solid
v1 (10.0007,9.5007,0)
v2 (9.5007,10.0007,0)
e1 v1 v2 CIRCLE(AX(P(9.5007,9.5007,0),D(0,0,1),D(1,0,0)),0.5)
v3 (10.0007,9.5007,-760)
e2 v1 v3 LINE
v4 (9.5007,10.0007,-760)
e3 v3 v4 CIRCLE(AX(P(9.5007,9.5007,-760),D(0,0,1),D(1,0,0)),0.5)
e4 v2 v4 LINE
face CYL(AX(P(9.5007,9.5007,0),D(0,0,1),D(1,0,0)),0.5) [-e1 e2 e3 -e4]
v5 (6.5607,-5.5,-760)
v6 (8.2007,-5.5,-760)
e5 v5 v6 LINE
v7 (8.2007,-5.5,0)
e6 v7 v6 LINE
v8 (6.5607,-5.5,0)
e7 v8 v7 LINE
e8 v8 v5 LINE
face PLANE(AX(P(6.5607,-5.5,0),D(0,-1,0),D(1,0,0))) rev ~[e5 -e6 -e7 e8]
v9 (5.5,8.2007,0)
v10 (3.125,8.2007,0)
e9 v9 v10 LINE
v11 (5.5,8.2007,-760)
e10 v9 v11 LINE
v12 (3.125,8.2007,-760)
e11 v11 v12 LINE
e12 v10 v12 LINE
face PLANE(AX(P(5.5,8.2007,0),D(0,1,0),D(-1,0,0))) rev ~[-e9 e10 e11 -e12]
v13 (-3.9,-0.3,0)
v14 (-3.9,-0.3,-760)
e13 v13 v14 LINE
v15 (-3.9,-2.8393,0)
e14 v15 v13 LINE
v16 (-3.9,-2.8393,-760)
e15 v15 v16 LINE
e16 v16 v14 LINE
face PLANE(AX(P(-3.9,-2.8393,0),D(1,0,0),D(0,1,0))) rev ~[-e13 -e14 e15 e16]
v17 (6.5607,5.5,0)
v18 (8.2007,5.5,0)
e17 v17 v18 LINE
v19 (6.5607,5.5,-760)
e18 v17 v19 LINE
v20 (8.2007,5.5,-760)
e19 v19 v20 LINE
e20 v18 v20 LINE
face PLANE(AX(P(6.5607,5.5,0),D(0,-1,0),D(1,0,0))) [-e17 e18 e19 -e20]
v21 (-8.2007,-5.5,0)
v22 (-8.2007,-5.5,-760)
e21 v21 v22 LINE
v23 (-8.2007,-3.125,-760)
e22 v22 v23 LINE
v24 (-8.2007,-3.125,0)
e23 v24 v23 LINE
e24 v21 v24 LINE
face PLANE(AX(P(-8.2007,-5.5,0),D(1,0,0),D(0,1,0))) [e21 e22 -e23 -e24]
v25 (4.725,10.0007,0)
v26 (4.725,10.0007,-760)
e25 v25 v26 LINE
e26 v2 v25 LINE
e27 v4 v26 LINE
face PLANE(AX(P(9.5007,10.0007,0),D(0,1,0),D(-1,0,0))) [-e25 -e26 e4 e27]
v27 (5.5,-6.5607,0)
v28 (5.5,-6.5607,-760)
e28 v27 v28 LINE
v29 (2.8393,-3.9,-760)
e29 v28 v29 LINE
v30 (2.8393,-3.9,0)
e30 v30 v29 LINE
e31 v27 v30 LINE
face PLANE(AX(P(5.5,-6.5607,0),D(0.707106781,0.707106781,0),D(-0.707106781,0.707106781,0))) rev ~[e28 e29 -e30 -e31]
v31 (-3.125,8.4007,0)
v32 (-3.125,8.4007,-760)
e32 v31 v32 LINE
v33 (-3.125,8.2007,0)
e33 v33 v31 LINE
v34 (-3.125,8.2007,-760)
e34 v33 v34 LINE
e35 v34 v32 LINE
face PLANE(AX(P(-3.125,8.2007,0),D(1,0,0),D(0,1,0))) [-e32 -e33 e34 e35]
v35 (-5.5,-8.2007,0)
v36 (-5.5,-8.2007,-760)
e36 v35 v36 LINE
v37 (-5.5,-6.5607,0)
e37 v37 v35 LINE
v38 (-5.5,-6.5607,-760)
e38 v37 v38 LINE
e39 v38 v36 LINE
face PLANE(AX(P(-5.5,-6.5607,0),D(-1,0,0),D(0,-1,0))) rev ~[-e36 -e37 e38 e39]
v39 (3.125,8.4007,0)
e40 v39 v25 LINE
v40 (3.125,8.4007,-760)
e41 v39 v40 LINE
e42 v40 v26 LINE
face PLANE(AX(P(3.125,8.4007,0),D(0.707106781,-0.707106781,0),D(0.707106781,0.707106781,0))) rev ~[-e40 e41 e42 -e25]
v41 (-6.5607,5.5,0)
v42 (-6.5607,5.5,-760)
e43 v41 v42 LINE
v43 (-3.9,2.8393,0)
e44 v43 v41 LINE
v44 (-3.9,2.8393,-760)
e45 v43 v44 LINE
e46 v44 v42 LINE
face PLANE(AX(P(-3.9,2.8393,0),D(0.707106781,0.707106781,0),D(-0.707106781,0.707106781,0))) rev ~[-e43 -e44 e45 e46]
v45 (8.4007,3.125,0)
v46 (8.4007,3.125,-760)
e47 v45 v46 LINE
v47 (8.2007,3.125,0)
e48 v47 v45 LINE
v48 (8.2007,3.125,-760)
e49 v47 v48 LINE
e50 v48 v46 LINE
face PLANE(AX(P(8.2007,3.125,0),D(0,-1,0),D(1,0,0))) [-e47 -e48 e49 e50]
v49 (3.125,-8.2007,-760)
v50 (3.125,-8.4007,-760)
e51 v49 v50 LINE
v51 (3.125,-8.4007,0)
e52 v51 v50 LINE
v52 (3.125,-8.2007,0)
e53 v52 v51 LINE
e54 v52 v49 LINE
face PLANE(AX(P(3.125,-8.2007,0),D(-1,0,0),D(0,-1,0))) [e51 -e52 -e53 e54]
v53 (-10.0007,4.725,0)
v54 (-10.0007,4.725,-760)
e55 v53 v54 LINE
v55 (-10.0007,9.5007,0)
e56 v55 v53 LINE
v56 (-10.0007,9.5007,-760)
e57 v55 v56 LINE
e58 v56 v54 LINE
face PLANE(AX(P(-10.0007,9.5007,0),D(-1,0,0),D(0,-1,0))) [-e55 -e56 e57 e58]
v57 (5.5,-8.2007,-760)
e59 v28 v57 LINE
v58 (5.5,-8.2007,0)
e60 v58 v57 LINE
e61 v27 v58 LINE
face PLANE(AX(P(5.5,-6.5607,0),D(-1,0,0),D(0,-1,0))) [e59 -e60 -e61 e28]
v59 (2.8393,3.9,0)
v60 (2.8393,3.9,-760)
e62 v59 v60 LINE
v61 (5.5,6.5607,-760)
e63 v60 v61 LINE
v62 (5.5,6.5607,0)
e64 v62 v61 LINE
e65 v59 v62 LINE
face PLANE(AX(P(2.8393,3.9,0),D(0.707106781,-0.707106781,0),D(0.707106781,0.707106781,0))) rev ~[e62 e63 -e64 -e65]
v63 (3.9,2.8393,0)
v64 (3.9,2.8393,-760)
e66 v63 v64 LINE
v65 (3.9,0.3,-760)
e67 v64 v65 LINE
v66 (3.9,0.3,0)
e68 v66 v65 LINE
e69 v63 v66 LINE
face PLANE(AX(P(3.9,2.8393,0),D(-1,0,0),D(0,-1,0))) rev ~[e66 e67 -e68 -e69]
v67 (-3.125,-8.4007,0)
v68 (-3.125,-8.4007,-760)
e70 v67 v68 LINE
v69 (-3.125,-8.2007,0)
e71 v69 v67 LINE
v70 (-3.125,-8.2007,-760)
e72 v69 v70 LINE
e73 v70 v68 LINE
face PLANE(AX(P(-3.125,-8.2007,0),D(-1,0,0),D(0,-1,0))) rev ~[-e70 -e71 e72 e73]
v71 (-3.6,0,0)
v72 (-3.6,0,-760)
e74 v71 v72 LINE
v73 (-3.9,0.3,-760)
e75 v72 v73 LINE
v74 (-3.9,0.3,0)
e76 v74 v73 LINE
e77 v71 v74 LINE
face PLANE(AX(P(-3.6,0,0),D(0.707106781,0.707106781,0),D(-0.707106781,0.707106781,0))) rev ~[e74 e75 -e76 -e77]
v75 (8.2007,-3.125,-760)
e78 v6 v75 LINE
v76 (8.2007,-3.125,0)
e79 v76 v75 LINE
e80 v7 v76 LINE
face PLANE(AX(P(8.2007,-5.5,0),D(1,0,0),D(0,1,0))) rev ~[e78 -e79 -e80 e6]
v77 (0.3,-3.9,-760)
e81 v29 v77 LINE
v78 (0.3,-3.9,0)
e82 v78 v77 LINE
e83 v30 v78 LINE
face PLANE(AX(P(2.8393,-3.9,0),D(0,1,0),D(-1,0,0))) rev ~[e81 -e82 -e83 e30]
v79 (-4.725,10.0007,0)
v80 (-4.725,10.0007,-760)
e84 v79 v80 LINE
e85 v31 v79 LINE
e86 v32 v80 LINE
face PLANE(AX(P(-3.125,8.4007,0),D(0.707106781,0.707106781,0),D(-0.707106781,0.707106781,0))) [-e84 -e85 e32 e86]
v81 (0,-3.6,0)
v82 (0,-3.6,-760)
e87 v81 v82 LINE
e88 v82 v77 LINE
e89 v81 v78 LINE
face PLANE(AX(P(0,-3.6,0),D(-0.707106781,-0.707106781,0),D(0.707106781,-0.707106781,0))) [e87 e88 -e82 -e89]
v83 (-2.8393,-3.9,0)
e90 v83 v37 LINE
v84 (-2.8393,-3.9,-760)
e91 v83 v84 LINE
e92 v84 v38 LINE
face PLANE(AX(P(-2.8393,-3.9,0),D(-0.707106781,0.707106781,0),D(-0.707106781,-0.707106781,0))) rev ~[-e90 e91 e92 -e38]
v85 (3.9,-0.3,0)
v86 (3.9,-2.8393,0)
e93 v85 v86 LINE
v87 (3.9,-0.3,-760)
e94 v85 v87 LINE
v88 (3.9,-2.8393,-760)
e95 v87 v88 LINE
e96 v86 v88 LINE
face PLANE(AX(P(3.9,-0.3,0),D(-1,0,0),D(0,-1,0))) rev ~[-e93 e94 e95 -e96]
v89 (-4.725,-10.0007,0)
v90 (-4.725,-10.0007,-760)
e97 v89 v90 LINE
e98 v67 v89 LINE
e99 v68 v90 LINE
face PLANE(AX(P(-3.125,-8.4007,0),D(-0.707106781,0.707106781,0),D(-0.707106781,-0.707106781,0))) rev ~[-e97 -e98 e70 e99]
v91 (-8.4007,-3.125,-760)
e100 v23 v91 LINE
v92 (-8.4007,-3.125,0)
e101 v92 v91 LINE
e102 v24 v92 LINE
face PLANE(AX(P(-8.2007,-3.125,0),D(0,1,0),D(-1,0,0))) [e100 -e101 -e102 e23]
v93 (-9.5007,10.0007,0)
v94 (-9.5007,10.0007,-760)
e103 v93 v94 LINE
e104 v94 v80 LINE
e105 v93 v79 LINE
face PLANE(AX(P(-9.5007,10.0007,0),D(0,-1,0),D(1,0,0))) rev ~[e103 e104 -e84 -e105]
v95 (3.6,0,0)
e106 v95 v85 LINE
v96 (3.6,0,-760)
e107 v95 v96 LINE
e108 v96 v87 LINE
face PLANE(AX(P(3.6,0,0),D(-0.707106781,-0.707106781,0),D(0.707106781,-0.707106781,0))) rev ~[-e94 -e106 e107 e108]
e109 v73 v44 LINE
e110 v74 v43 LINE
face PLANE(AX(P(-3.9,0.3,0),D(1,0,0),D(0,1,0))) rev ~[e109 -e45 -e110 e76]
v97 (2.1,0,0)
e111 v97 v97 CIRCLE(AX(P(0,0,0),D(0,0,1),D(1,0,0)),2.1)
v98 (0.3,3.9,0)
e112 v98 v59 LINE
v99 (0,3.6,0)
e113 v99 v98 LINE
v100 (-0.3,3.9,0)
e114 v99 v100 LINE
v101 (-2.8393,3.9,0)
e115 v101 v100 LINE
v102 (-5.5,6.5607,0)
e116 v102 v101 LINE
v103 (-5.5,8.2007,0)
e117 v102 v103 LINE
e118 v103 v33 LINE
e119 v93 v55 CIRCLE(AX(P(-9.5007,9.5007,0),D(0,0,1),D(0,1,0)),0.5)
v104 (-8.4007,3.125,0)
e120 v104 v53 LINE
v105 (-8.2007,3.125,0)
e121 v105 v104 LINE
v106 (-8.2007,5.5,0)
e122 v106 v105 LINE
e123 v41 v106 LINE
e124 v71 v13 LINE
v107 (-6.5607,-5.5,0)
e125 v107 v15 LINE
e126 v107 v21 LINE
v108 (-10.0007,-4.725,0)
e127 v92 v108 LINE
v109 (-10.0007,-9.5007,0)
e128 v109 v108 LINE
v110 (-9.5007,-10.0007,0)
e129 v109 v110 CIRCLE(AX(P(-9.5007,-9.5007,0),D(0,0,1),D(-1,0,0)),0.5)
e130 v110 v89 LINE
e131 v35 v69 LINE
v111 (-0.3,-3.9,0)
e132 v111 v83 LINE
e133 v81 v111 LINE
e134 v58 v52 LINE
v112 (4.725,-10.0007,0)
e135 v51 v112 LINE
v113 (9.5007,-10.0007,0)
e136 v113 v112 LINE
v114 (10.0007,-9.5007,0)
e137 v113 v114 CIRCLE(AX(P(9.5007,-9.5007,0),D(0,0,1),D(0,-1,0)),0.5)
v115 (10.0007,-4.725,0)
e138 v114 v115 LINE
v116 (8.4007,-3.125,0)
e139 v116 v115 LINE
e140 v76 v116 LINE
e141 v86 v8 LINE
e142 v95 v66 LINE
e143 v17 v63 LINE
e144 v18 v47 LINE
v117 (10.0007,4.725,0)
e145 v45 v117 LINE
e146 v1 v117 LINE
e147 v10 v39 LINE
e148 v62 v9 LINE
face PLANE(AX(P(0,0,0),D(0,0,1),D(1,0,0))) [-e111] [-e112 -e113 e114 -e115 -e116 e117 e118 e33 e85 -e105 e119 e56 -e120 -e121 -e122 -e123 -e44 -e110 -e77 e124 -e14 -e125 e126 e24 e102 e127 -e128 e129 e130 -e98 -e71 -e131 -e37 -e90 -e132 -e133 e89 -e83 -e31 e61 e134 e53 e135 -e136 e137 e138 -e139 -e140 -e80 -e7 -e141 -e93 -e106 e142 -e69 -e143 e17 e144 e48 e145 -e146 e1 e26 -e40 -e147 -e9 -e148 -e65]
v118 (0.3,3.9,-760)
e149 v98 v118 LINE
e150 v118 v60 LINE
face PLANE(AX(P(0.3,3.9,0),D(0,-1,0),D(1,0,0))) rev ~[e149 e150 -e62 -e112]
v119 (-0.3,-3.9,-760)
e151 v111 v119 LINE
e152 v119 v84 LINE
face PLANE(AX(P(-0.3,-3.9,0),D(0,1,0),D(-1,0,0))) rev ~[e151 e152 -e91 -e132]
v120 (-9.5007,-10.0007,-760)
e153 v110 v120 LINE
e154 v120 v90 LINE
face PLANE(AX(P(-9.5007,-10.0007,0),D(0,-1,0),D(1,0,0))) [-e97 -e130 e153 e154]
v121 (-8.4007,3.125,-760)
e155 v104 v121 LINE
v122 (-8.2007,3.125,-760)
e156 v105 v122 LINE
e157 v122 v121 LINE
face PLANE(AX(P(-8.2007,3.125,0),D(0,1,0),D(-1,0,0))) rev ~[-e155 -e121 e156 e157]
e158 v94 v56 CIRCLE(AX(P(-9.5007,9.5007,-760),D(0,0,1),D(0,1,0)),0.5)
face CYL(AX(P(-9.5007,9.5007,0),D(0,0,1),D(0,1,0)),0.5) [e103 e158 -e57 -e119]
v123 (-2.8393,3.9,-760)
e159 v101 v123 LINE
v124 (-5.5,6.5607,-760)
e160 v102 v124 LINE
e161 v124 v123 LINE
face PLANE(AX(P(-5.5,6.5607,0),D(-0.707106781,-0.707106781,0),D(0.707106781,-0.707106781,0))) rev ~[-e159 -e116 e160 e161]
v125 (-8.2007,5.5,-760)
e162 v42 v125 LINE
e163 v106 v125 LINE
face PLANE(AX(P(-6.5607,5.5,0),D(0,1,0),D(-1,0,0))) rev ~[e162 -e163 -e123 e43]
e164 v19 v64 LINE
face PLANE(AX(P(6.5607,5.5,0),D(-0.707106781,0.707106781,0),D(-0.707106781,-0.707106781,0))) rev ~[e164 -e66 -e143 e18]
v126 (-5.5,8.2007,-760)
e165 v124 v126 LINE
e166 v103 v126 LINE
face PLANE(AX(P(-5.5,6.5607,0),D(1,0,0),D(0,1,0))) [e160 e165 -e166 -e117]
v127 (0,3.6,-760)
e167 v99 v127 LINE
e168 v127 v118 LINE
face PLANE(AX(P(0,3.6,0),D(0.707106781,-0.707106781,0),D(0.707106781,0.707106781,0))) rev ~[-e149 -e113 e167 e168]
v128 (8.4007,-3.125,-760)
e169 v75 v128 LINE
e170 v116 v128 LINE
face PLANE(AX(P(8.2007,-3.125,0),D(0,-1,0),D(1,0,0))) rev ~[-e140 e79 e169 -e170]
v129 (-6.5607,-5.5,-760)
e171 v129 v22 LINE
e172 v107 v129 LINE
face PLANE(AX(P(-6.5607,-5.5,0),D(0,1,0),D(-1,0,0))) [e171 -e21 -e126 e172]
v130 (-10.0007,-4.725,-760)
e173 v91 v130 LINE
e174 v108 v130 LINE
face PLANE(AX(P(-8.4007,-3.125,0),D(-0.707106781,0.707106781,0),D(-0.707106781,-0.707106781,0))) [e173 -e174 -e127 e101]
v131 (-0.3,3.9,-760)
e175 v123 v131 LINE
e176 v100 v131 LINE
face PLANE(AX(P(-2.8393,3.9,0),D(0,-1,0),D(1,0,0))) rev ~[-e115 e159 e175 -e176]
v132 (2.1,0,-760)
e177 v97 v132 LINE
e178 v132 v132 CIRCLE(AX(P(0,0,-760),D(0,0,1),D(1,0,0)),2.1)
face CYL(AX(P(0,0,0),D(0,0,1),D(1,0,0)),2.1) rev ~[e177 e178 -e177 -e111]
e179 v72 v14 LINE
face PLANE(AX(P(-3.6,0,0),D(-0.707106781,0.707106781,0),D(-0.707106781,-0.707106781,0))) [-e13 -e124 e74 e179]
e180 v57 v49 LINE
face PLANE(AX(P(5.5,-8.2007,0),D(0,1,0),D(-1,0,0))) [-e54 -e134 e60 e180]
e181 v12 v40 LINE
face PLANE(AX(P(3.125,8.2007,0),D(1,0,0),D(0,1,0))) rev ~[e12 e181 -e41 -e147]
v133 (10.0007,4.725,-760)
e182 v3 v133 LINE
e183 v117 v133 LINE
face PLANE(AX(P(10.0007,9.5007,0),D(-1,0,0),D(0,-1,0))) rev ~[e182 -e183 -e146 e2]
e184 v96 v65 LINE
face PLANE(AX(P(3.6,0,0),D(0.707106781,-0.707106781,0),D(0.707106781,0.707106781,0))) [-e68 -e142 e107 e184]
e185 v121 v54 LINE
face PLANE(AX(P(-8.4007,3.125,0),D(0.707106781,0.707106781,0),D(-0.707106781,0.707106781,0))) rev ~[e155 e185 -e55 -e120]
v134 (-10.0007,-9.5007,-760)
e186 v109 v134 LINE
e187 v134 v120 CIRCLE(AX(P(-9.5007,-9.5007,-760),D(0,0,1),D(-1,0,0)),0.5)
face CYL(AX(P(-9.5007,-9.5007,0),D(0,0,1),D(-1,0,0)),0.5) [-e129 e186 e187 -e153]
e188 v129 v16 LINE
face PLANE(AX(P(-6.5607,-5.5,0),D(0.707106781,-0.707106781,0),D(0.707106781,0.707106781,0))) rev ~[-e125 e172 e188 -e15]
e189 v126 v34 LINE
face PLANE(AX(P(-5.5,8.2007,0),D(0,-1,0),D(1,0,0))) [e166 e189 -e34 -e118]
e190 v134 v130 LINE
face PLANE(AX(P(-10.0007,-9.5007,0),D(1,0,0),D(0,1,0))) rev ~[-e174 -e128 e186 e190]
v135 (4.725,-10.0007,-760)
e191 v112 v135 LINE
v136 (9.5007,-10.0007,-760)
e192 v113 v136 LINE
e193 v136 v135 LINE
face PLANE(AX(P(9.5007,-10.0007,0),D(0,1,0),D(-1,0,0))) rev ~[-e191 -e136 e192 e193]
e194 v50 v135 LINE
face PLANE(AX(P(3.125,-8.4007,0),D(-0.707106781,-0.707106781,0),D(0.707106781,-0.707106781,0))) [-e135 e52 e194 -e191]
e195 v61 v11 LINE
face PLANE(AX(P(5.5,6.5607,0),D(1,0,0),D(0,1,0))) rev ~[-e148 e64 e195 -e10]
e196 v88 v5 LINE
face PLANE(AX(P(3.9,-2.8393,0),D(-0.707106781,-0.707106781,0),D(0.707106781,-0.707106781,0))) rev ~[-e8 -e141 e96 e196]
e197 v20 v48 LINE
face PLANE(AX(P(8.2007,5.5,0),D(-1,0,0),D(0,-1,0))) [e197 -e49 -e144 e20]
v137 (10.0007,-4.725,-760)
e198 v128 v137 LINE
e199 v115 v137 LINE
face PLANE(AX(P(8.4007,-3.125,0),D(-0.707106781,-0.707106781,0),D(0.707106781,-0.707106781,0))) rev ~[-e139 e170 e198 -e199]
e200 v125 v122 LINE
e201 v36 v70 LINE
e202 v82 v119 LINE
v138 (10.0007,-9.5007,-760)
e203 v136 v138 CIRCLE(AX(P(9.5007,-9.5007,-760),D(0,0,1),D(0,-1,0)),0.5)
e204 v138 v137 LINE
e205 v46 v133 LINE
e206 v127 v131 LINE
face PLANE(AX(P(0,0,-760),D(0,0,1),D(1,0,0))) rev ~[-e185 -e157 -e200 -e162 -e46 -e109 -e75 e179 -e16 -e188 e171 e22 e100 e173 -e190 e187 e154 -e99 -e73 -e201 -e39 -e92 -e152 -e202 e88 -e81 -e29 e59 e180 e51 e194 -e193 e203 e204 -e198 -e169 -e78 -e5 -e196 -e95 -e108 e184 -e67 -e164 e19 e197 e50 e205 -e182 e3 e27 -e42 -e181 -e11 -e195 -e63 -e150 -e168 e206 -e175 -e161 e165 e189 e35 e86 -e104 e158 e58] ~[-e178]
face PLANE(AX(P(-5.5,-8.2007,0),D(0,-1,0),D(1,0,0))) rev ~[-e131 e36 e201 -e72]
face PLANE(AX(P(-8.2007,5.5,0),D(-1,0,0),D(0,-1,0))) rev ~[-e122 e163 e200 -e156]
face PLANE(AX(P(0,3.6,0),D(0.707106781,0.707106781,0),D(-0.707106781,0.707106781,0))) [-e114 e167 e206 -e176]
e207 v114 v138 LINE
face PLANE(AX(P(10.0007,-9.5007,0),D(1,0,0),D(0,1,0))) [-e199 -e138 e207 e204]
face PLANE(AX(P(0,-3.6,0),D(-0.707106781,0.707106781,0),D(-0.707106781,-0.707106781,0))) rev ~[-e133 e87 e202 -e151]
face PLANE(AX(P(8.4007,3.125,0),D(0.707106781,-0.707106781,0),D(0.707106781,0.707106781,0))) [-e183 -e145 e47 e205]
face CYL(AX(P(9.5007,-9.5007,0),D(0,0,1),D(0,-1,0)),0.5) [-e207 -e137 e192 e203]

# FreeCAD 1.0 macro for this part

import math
import FreeCAD as App
import Part
import Sketcher
Q = App.Units.Quantity

doc = App.newDocument("Part")
body = doc.addObject("PartDesign::Body", "Body")

# Sketch on XY plane
sketch1 = body.newObject("Sketcher::SketchObject", "Sketch")
sketch1.AttachmentSupport = (doc.getObject("XY_Plane"), [""])
sketch1.MapMode = "FlatFace"
sketch1.addGeometry([
    Part.LineSegment(App.Vector(3.9, -2.84, 0), App.Vector(3.9, -0.3, 0)),  # 0
    Part.LineSegment(App.Vector(3.9, -0.3, 0), App.Vector(3.6, 0, 0)),  # 1
    Part.LineSegment(App.Vector(3.6, 0, 0), App.Vector(3.9, 0.3, 0)),  # 2
    Part.LineSegment(App.Vector(3.9, 0.3, 0), App.Vector(3.9, 2.84, 0)),  # 3
    Part.LineSegment(App.Vector(3.9, 2.84, 0), App.Vector(6.56, 5.5, 0)),  # 4
    Part.LineSegment(App.Vector(6.56, 5.5, 0), App.Vector(8.2, 5.5, 0)),  # 5
    Part.LineSegment(App.Vector(8.2, 5.5, 0), App.Vector(8.2, 3.12, 0)),  # 6
    Part.LineSegment(App.Vector(8.2, 3.12, 0), App.Vector(8.4, 3.12, 0)),  # 7
    Part.LineSegment(App.Vector(8.4, 3.12, 0), App.Vector(10, 4.72, 0)),  # 8
    Part.LineSegment(App.Vector(10, 4.72, 0), App.Vector(10, 9.5, 0)),  # 9
    Part.ArcOfCircle(Part.Circle(App.Vector(9.5, 9.5, 0), App.Vector(0, 0, 1), 0.5), math.radians(0), math.radians(90)),  # 10
    Part.LineSegment(App.Vector(9.5, 10, 0), App.Vector(4.72, 10, 0)),  # 11
    Part.LineSegment(App.Vector(4.72, 10, 0), App.Vector(3.12, 8.4, 0)),  # 12
    Part.LineSegment(App.Vector(3.12, 8.4, 0), App.Vector(3.12, 8.2, 0)),  # 13
    Part.LineSegment(App.Vector(3.12, 8.2, 0), App.Vector(5.5, 8.2, 0)),  # 14
    Part.LineSegment(App.Vector(5.5, 8.2, 0), App.Vector(5.5, 6.56, 0)),  # 15
    Part.LineSegment(App.Vector(5.5, 6.56, 0), App.Vector(2.84, 3.9, 0)),  # 16
    Part.LineSegment(App.Vector(2.84, 3.9, 0), App.Vector(0.3, 3.9, 0)),  # 17
    Part.LineSegment(App.Vector(0.3, 3.9, 0), App.Vector(0, 3.6, 0)),  # 18
    Part.LineSegment(App.Vector(0, 3.6, 0), App.Vector(-0.3, 3.9, 0)),  # 19
    Part.LineSegment(App.Vector(-0.3, 3.9, 0), App.Vector(-2.84, 3.9, 0)),  # 20
    Part.LineSegment(App.Vector(-2.84, 3.9, 0), App.Vector(-5.5, 6.56, 0)),  # 21
    Part.LineSegment(App.Vector(-5.5, 6.56, 0), App.Vector(-5.5, 8.2, 0)),  # 22
    Part.LineSegment(App.Vector(-5.5, 8.2, 0), App.Vector(-3.12, 8.2, 0)),  # 23
    Part.LineSegment(App.Vector(-3.12, 8.2, 0), App.Vector(-3.12, 8.4, 0)),  # 24
    Part.LineSegment(App.Vector(-3.12, 8.4, 0), App.Vector(-4.72, 10, 0)),  # 25
    Part.LineSegment(App.Vector(-4.72, 10, 0), App.Vector(-9.5, 10, 0)),  # 26
    Part.ArcOfCircle(Part.Circle(App.Vector(-9.5, 9.5, 0), App.Vector(0, 0, 1), 0.5), math.radians(90), math.radians(180)),  # 27
    Part.LineSegment(App.Vector(-10, 9.5, 0), App.Vector(-10, 4.72, 0)),  # 28
    Part.LineSegment(App.Vector(-10, 4.72, 0), App.Vector(-8.4, 3.12, 0)),  # 29
    Part.LineSegment(App.Vector(-8.4, 3.12, 0), App.Vector(-8.2, 3.12, 0)),  # 30
    Part.LineSegment(App.Vector(-8.2, 3.12, 0), App.Vector(-8.2, 5.5, 0)),  # 31
    Part.LineSegment(App.Vector(-8.2, 5.5, 0), App.Vector(-6.56, 5.5, 0)),  # 32
    Part.LineSegment(App.Vector(-6.56, 5.5, 0), App.Vector(-3.9, 2.84, 0)),  # 33
    Part.LineSegment(App.Vector(-3.9, 2.84, 0), App.Vector(-3.9, 0.3, 0)),  # 34
    Part.LineSegment(App.Vector(-3.9, 0.3, 0), App.Vector(-3.6, 0, 0)),  # 35
    Part.LineSegment(App.Vector(-3.6, 0, 0), App.Vector(-3.9, -0.3, 0)),  # 36
    Part.LineSegment(App.Vector(-3.9, -0.3, 0), App.Vector(-3.9, -2.84, 0)),  # 37
    Part.LineSegment(App.Vector(-3.9, -2.84, 0), App.Vector(-6.56, -5.5, 0)),  # 38
    Part.LineSegment(App.Vector(-6.56, -5.5, 0), App.Vector(-8.2, -5.5, 0)),  # 39
    Part.LineSegment(App.Vector(-8.2, -5.5, 0), App.Vector(-8.2, -3.12, 0)),  # 40
    Part.LineSegment(App.Vector(-8.2, -3.12, 0), App.Vector(-8.4, -3.12, 0)),  # 41
    Part.LineSegment(App.Vector(-8.4, -3.12, 0), App.Vector(-10, -4.72, 0)),  # 42
    Part.LineSegment(App.Vector(-10, -4.72, 0), App.Vector(-10, -9.5, 0)),  # 43
    Part.ArcOfCircle(Part.Circle(App.Vector(-9.5, -9.5, 0), App.Vector(0, 0, 1), 0.5), math.radians(180), math.radians(270)),  # 44
    Part.LineSegment(App.Vector(-9.5, -10, 0), App.Vector(-4.72, -10, 0)),  # 45
    Part.LineSegment(App.Vector(-4.72, -10, 0), App.Vector(-3.12, -8.4, 0)),  # 46
    Part.LineSegment(App.Vector(-3.12, -8.4, 0), App.Vector(-3.12, -8.2, 0)),  # 47
    Part.LineSegment(App.Vector(-3.12, -8.2, 0), App.Vector(-5.5, -8.2, 0)),  # 48
    Part.LineSegment(App.Vector(-5.5, -8.2, 0), App.Vector(-5.5, -6.56, 0)),  # 49
    Part.LineSegment(App.Vector(-5.5, -6.56, 0), App.Vector(-2.84, -3.9, 0)),  # 50
    Part.LineSegment(App.Vector(-2.84, -3.9, 0), App.Vector(-0.3, -3.9, 0)),  # 51
    Part.LineSegment(App.Vector(-0.3, -3.9, 0), App.Vector(0, -3.6, 0)),  # 52
    Part.LineSegment(App.Vector(0, -3.6, 0), App.Vector(0.3, -3.9, 0)),  # 53
    Part.LineSegment(App.Vector(0.3, -3.9, 0), App.Vector(2.84, -3.9, 0)),  # 54
    Part.LineSegment(App.Vector(2.84, -3.9, 0), App.Vector(5.5, -6.56, 0)),  # 55
    Part.LineSegment(App.Vector(5.5, -6.56, 0), App.Vector(5.5, -8.2, 0)),  # 56
    Part.LineSegment(App.Vector(5.5, -8.2, 0), App.Vector(3.12, -8.2, 0)),  # 57
    Part.LineSegment(App.Vector(3.12, -8.2, 0), App.Vector(3.12, -8.4, 0)),  # 58
    Part.LineSegment(App.Vector(3.12, -8.4, 0), App.Vector(4.72, -10, 0)),  # 59
    Part.LineSegment(App.Vector(4.72, -10, 0), App.Vector(9.5, -10, 0)),  # 60
    Part.ArcOfCircle(Part.Circle(App.Vector(9.5, -9.5, 0), App.Vector(0, 0, 1), 0.5), math.radians(-90), math.radians(0)),  # 61
    Part.LineSegment(App.Vector(10, -9.5, 0), App.Vector(10, -4.72, 0)),  # 62
    Part.LineSegment(App.Vector(10, -4.72, 0), App.Vector(8.4, -3.12, 0)),  # 63
    Part.LineSegment(App.Vector(8.4, -3.12, 0), App.Vector(8.2, -3.12, 0)),  # 64
    Part.LineSegment(App.Vector(8.2, -3.12, 0), App.Vector(8.2, -5.5, 0)),  # 65
    Part.LineSegment(App.Vector(8.2, -5.5, 0), App.Vector(6.56, -5.5, 0)),  # 66
    Part.LineSegment(App.Vector(6.56, -5.5, 0), App.Vector(3.9, -2.84, 0)),  # 67
    Part.Circle(App.Vector(0, 0, 0), App.Vector(0, 0, 1), 2.1),  # 68
], False)
sketch1.addConstraint([
    Sketcher.Constraint("Coincident", 0, 2, 1, 1),
    Sketcher.Constraint("Coincident", 1, 2, 2, 1),
    Sketcher.Constraint("Coincident", 2, 2, 3, 1),
    Sketcher.Constraint("Coincident", 3, 2, 4, 1),
    Sketcher.Constraint("Coincident", 4, 2, 5, 1),
    Sketcher.Constraint("Coincident", 5, 2, 6, 1),
    Sketcher.Constraint("Coincident", 6, 2, 7, 1),
    Sketcher.Constraint("Coincident", 7, 2, 8, 1),
    Sketcher.Constraint("Coincident", 8, 2, 9, 1),
    Sketcher.Constraint("Tangent", 9, 2, 10, 1),
    Sketcher.Constraint("Tangent", 10, 2, 11, 1),
    Sketcher.Constraint("Coincident", 11, 2, 12, 1),
    Sketcher.Constraint("Coincident", 12, 2, 13, 1),
    Sketcher.Constraint("Coincident", 13, 2, 14, 1),
    Sketcher.Constraint("Coincident", 14, 2, 15, 1),
    Sketcher.Constraint("Coincident", 15, 2, 16, 1),
    Sketcher.Constraint("Coincident", 16, 2, 17, 1),
    Sketcher.Constraint("Coincident", 17, 2, 18, 1),
    Sketcher.Constraint("Coincident", 18, 2, 19, 1),
    Sketcher.Constraint("Coincident", 19, 2, 20, 1),
    Sketcher.Constraint("Coincident", 20, 2, 21, 1),
    Sketcher.Constraint("Coincident", 21, 2, 22, 1),
    Sketcher.Constraint("Coincident", 22, 2, 23, 1),
    Sketcher.Constraint("Coincident", 23, 2, 24, 1),
    Sketcher.Constraint("Coincident", 24, 2, 25, 1),
    Sketcher.Constraint("Coincident", 25, 2, 26, 1),
    Sketcher.Constraint("Tangent", 26, 2, 27, 1),
    Sketcher.Constraint("Tangent", 27, 2, 28, 1),
    Sketcher.Constraint("Coincident", 28, 2, 29, 1),
    Sketcher.Constraint("Coincident", 29, 2, 30, 1),
    Sketcher.Constraint("Coincident", 30, 2, 31, 1),
    Sketcher.Constraint("Coincident", 31, 2, 32, 1),
    Sketcher.Constraint("Coincident", 32, 2, 33, 1),
    Sketcher.Constraint("Coincident", 33, 2, 34, 1),
    Sketcher.Constraint("Coincident", 34, 2, 35, 1),
    Sketcher.Constraint("Coincident", 35, 2, 36, 1),
    Sketcher.Constraint("Coincident", 36, 2, 37, 1),
    Sketcher.Constraint("Coincident", 37, 2, 38, 1),
    Sketcher.Constraint("Coincident", 38, 2, 39, 1),
    Sketcher.Constraint("Coincident", 39, 2, 40, 1),
    Sketcher.Constraint("Coincident", 40, 2, 41, 1),
    Sketcher.Constraint("Coincident", 41, 2, 42, 1),
    Sketcher.Constraint("Coincident", 42, 2, 43, 1),
    Sketcher.Constraint("Tangent", 43, 2, 44, 1),
    Sketcher.Constraint("Tangent", 44, 2, 45, 1),
    Sketcher.Constraint("Coincident", 45, 2, 46, 1),
    Sketcher.Constraint("Coincident", 46, 2, 47, 1),
    Sketcher.Constraint("Coincident", 47, 2, 48, 1),
    Sketcher.Constraint("Coincident", 48, 2, 49, 1),
    Sketcher.Constraint("Coincident", 49, 2, 50, 1),
    Sketcher.Constraint("Coincident", 50, 2, 51, 1),
    Sketcher.Constraint("Coincident", 51, 2, 52, 1),
    Sketcher.Constraint("Coincident", 52, 2, 53, 1),
    Sketcher.Constraint("Coincident", 53, 2, 54, 1),
    Sketcher.Constraint("Coincident", 54, 2, 55, 1),
    Sketcher.Constraint("Coincident", 55, 2, 56, 1),
    Sketcher.Constraint("Coincident", 56, 2, 57, 1),
    Sketcher.Constraint("Coincident", 57, 2, 58, 1),
    Sketcher.Constraint("Coincident", 58, 2, 59, 1),
    Sketcher.Constraint("Coincident", 59, 2, 60, 1),
    Sketcher.Constraint("Tangent", 60, 2, 61, 1),
    Sketcher.Constraint("Tangent", 61, 2, 62, 1),
    Sketcher.Constraint("Coincident", 62, 2, 63, 1),
    Sketcher.Constraint("Coincident", 63, 2, 64, 1),
    Sketcher.Constraint("Coincident", 64, 2, 65, 1),
    Sketcher.Constraint("Coincident", 65, 2, 66, 1),
    Sketcher.Constraint("Coincident", 66, 2, 67, 1),
    Sketcher.Constraint("Coincident", 67, 2, 0, 1),
    Sketcher.Constraint("Vertical", 0),
    Sketcher.Constraint("Vertical", 3),
    Sketcher.Constraint("Horizontal", 5),
    Sketcher.Constraint("Vertical", 6),
    Sketcher.Constraint("Horizontal", 7),
    Sketcher.Constraint("Vertical", 9),
    Sketcher.Constraint("Horizontal", 11),
    Sketcher.Constraint("Vertical", 13),
    Sketcher.Constraint("Horizontal", 14),
    Sketcher.Constraint("Vertical", 15),
    Sketcher.Constraint("Horizontal", 17),
    Sketcher.Constraint("Horizontal", 20),
    Sketcher.Constraint("Vertical", 22),
    Sketcher.Constraint("Horizontal", 23),
    Sketcher.Constraint("Vertical", 24),
    Sketcher.Constraint("Horizontal", 26),
    Sketcher.Constraint("Vertical", 28),
    Sketcher.Constraint("Horizontal", 30),
    Sketcher.Constraint("Vertical", 31),
    Sketcher.Constraint("Horizontal", 32),
    Sketcher.Constraint("Vertical", 34),
    Sketcher.Constraint("Vertical", 37),
    Sketcher.Constraint("Horizontal", 39),
    Sketcher.Constraint("Vertical", 40),
    Sketcher.Constraint("Horizontal", 41),
    Sketcher.Constraint("Vertical", 43),
    Sketcher.Constraint("Horizontal", 45),
    Sketcher.Constraint("Vertical", 47),
    Sketcher.Constraint("Horizontal", 48),
    Sketcher.Constraint("Vertical", 49),
    Sketcher.Constraint("Horizontal", 51),
    Sketcher.Constraint("Horizontal", 54),
    Sketcher.Constraint("Vertical", 56),
    Sketcher.Constraint("Horizontal", 57),
    Sketcher.Constraint("Vertical", 58),
    Sketcher.Constraint("Horizontal", 60),
    Sketcher.Constraint("Vertical", 62),
    Sketcher.Constraint("Horizontal", 64),
    Sketcher.Constraint("Vertical", 65),
    Sketcher.Constraint("Horizontal", 66),
    Sketcher.Constraint("Coincident", 68, 3, -1, 1),
    Sketcher.Constraint("Equal", 10, 27),
    Sketcher.Constraint("Equal", 27, 44),
    Sketcher.Constraint("Equal", 44, 61),
    Sketcher.Constraint("Symmetric", 10, 3, 44, 3, -1, 1),
    Sketcher.Constraint("Symmetric", 27, 3, 61, 3, -1, 1),
    Sketcher.Constraint("Symmetric", 0, 2, 34, 2, -1, 1),
    Sketcher.Constraint("Symmetric", 1, 2, 35, 2, -1, 1),
    Sketcher.Constraint("Symmetric", 2, 2, 36, 2, -1, 1),
    Sketcher.Constraint("Symmetric", 4, 2, 38, 2, -1, 1),
    Sketcher.Constraint("Symmetric", 6, 2, 40, 2, -1, 1),
    Sketcher.Constraint("Symmetric", 12, 2, 46, 2, -1, 1),
    Sketcher.Constraint("Symmetric", 14, 2, 48, 2, -1, 1),
    Sketcher.Constraint("Symmetric", 16, 2, 50, 2, -1, 1),
    Sketcher.Constraint("Symmetric", 18, 2, 52, 2, -1, 1),
    Sketcher.Constraint("Symmetric", 19, 2, 53, 2, -1, 1),
    Sketcher.Constraint("Symmetric", 21, 2, 55, 2, -1, 1),
    Sketcher.Constraint("Symmetric", 23, 2, 57, 2, -1, 1),
    Sketcher.Constraint("Symmetric", 29, 2, 63, 2, -1, 1),
    Sketcher.Constraint("Symmetric", 31, 2, 65, 2, -1, 1),
    Sketcher.Constraint("Symmetric", 10, 3, 27, 3, -2),
    Sketcher.Constraint("Symmetric", 17, 2, 19, 2, -2),
    Sketcher.Constraint("Symmetric", 15, 2, 21, 2, -2),
    Sketcher.Constraint("Symmetric", 13, 2, 23, 2, -2),
    Sketcher.Constraint("Symmetric", 7, 2, 29, 2, -2),
    Sketcher.Constraint("Symmetric", 5, 2, 31, 2, -2),
    Sketcher.Constraint("Symmetric", 3, 2, 33, 2, -2),
    Sketcher.Constraint("PointOnObject", 1, 2, -1),
    Sketcher.Constraint("PointOnObject", 18, 2, -2),
    Sketcher.Constraint("Perpendicular", 1, 2),
    Sketcher.Constraint("Parallel", 2, 4),
    Sketcher.Constraint("Parallel", 4, 8),
    Sketcher.Constraint("Parallel", 8, 12),
    Sketcher.Constraint("Parallel", 12, 16),
    Sketcher.Constraint("Parallel", 16, 18),
    Sketcher.Constraint("Perpendicular", 18, 19),
    Sketcher.Constraint("Parallel", 19, 21),
    Sketcher.Constraint("Parallel", 21, 25),
    Sketcher.Constraint("Parallel", 25, 29),
    Sketcher.Constraint("Parallel", 29, 33),
    Sketcher.Constraint("Parallel", 36, 38),
    Sketcher.Constraint("Parallel", 38, 42),
    Sketcher.Constraint("Parallel", 42, 46),
    Sketcher.Constraint("Parallel", 46, 50),
    Sketcher.Constraint("Parallel", 50, 52),
    Sketcher.Constraint("Parallel", 53, 55),
    Sketcher.Constraint("Parallel", 55, 59),
    Sketcher.Constraint("Parallel", 59, 63),
    Sketcher.Constraint("Parallel", 63, 67),
    Sketcher.Constraint("Horizontal", 12, 2, 24, 2),
    Sketcher.Constraint("Horizontal", 46, 2, 58, 2),
    Sketcher.Constraint("Horizontal", 42, 2, 62, 2),
    Sketcher.Constraint("Horizontal", 37, 2, 67, 2),
    Sketcher.Constraint("Equal", 54, 0),
    Sketcher.Constraint("Equal", 57, 6),
    Sketcher.Constraint("Equal", 60, 9),
    Sketcher.Constraint("Equal", 64, 13),
    Sketcher.Constraint("Equal", 66, 15),
    Sketcher.Constraint("Equal", 8, 12),
    Sketcher.Constraint("Equal", 4, 16),
    Sketcher.Constraint("Equal", 2, 18),
    Sketcher.Constraint("Diameter", 68, Q("4.2 mm")),
    Sketcher.Constraint("Radius", 10, Q("0.5 mm")),
    Sketcher.Constraint("DistanceX", 7, 1, 7, 2, Q("0.2 mm")),
    Sketcher.Constraint("DistanceX", 5, 1, 5, 2, Q("1.64 mm")),
    Sketcher.Constraint("DistanceX", -1, 1, 0, 2, Q("3.9 mm")),
    Sketcher.Constraint("DistanceY", 0, 2, -1, 1, Q("0.3 mm")),
    Sketcher.Constraint("DistanceY", -1, 1, 4, 2, Q("5.5 mm")),
    Sketcher.Constraint("DistanceY", -1, 1, 6, 2, Q("3.125 mm")),
    Sketcher.Constraint("DistanceX", 11, 2, 11, 1, Q("4.7757 mm")),
    Sketcher.Constraint("DistanceY", -1, 1, 8, 2, Q("4.725 mm")),
])
pad1 = body.newObject("PartDesign::Pad", "Pad")
pad1.Profile = sketch1
pad1.Length = 760
pad1.Reversed = True

doc.recompute()
